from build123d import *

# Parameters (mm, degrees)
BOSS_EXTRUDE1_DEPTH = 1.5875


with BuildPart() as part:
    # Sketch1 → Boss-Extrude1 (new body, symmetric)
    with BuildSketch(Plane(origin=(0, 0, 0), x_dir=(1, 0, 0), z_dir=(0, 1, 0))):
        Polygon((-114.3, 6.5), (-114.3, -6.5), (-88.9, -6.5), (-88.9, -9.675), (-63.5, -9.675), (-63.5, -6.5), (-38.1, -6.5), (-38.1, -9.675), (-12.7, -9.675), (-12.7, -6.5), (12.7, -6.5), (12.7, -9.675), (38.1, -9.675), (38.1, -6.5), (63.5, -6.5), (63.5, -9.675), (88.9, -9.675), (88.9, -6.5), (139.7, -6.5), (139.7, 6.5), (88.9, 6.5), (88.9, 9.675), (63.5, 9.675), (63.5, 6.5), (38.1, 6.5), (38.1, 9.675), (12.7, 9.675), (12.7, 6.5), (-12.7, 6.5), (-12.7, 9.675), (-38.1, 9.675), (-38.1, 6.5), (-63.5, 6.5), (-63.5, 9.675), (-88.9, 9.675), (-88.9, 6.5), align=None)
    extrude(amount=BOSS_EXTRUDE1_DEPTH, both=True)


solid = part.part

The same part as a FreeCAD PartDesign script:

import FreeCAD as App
import Part
import Sketcher
from FreeCAD import Vector
Q = App.Units.Quantity


def add_polygon(sketch, points):
    """Adds a closed chain of lines whose ends are joined by coincident constraints."""
    first, n = sketch.GeometryCount, len(points)
    for a, b in zip(points, points[1:] + points[:1]):
        sketch.addGeometry(Part.LineSegment(App.Vector(*a, 0), App.Vector(*b, 0)), False)
    for i in range(n):
        sketch.addConstraint(Sketcher.Constraint("Coincident", first + i, 2, first + (i + 1) % n, 1))

doc = App.newDocument("Part")
body = doc.addObject("PartDesign::Body", "Body")

# Sketch on XZ plane
sketch1 = body.newObject("Sketcher::SketchObject", "Sketch")
sketch1.AttachmentSupport = (doc.getObject("XZ_Plane"), [""])
sketch1.MapMode = "FlatFace"
add_polygon(sketch1, [(-114.3, -6.5), (-114.3, 6.5), (-88.9, 6.5), (-88.9, 9.7), (-63.5, 9.7), (-63.5, 6.5), (-38.1, 6.5), (-38.1, 9.7), (-12.7, 9.7), (-12.7, 6.5), (12.7, 6.5), (12.7, 9.7), (38.1, 9.7), (38.1, 6.5), (63.5, 6.5), (63.5, 9.7), (88.9, 9.7), (88.9, 6.5), (139.7, 6.5), (139.7, -6.5), (88.9, -6.5), (88.9, -9.7), (63.5, -9.7), (63.5, -6.5), (38.1, -6.5), (38.1, -9.7), (12.7, -9.7), (12.7, -6.5), (-12.7, -6.5), (-12.7, -9.7), (-38.1, -9.7), (-38.1, -6.5), (-63.5, -6.5), (-63.5, -9.7), (-88.9, -9.7), (-88.9, -6.5)])  # lines 0-35
sketch1.addConstraint([
    Sketcher.Constraint("Vertical", 0),
    Sketcher.Constraint("Horizontal", 1),
    Sketcher.Constraint("Vertical", 2),
    Sketcher.Constraint("Horizontal", 3),
    Sketcher.Constraint("Vertical", 4),
    Sketcher.Constraint("Horizontal", 5),
    Sketcher.Constraint("Vertical", 6),
    Sketcher.Constraint("Horizontal", 7),
    Sketcher.Constraint("Vertical", 8),
    Sketcher.Constraint("Horizontal", 9),
    Sketcher.Constraint("Vertical", 10),
    Sketcher.Constraint("Horizontal", 11),
    Sketcher.Constraint("Vertical", 12),
    Sketcher.Constraint("Horizontal", 13),
    Sketcher.Constraint("Vertical", 14),
    Sketcher.Constraint("Horizontal", 15),
    Sketcher.Constraint("Vertical", 16),
    Sketcher.Constraint("Horizontal", 17),
    Sketcher.Constraint("Vertical", 18),
    Sketcher.Constraint("Horizontal", 19),
    Sketcher.Constraint("Vertical", 20),
    Sketcher.Constraint("Horizontal", 21),
    Sketcher.Constraint("Vertical", 22),
    Sketcher.Constraint("Horizontal", 23),
    Sketcher.Constraint("Vertical", 24),
    Sketcher.Constraint("Horizontal", 25),
    Sketcher.Constraint("Vertical", 26),
    Sketcher.Constraint("Horizontal", 27),
    Sketcher.Constraint("Vertical", 28),
    Sketcher.Constraint("Horizontal", 29),
    Sketcher.Constraint("Vertical", 30),
    Sketcher.Constraint("Horizontal", 31),
    Sketcher.Constraint("Vertical", 32),
    Sketcher.Constraint("Horizontal", 33),
    Sketcher.Constraint("Vertical", 34),
    Sketcher.Constraint("Horizontal", 35),
    Sketcher.Constraint("Symmetric", 1, 2, 19, 2, -1, 1),
    Sketcher.Constraint("Symmetric", 3, 2, 21, 2, -1, 1),
    Sketcher.Constraint("Symmetric", 5, 2, 23, 2, -1, 1),
    Sketcher.Constraint("Symmetric", 7, 2, 25, 2, -1, 1),
    Sketcher.Constraint("Symmetric", 9, 2, 27, 2, -1, 1),
    Sketcher.Constraint("Symmetric", 11, 2, 29, 2, -1, 1),
    Sketcher.Constraint("Symmetric", 13, 2, 31, 2, -1, 1),
    Sketcher.Constraint("Symmetric", 15, 2, 33, 2, -1, 1),
    Sketcher.Constraint("Symmetric", 7, 2, 10, 2, -2),
    Sketcher.Constraint("Symmetric", 5, 2, 12, 2, -2),
    Sketcher.Constraint("Symmetric", 3, 2, 14, 2, -2),
    Sketcher.Constraint("Symmetric", 1, 2, 16, 2, -2),
    Sketcher.Constraint("Horizontal", 1, 2, 4, 2),
    Sketcher.Constraint("Horizontal", 3, 2, 6, 2),
    Sketcher.Constraint("Horizontal", 5, 2, 8, 2),
    Sketcher.Constraint("Horizontal", 31, 2, 34, 2),
    Sketcher.Constraint("Equal", 1, 3),
    Sketcher.Constraint("Equal", 3, 5),
    Sketcher.Constraint("Equal", 5, 7),
    Sketcher.Constraint("Equal", 7, 9),
    Sketcher.Constraint("DistanceX", 1, 1, 1, 2, Q("1 in")),
    Sketcher.Constraint("DistanceX", 17, 1, 17, 2, Q("2 in")),
    Sketcher.Constraint("DistanceY", 2, 1, 2, 2, Q("0.125 in")),
    Sketcher.Constraint("DistanceY", 0, 1, 0, 2, 13.0),
])
pad1 = body.newObject("PartDesign::Pad", "Pad")
pad1.Profile = sketch1
pad1.Length = Q("0.125 in")
pad1.Midplane = True

doc.recompute()
